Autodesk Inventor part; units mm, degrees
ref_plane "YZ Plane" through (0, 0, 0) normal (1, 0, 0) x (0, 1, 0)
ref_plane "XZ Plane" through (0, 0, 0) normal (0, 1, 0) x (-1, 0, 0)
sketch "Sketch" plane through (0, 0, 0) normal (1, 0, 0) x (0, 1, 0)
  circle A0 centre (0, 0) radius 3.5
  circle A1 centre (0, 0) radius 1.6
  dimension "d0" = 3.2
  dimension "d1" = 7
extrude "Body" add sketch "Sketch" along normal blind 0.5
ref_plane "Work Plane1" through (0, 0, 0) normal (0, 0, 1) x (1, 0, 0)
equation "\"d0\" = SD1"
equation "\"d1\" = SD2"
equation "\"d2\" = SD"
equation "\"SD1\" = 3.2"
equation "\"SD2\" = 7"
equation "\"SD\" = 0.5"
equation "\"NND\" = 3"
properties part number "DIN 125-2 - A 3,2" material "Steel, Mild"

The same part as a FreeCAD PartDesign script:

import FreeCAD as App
import Part
import Sketcher

V = App.Vector
Q = App.Units.Quantity

doc = App.newDocument("Part")
body = doc.addObject("PartDesign::Body", "Body")

# Sketch on YZ plane
sketch1 = doc.addObject("Sketcher::SketchObject", "Sketch")
body.addObject(sketch1)
sketch1.AttachmentSupport = (doc.YZ_Plane, [""])
sketch1.MapMode = "FlatFace"
sketch1.addGeometry(Part.Circle(V(0, 0, 0), V(0, 0, 1), 3.5), False)
sketch1.addGeometry(Part.Circle(V(0, 0, 0), V(0, 0, 1), 1.6), False)
sketch1.addConstraint(Sketcher.Constraint("Coincident", 0, 3, -1, 1))
sketch1.addConstraint(Sketcher.Constraint("Coincident", 1, 3, -1, 1))
sketch1.addConstraint(Sketcher.Constraint("Diameter", 0, Q("7 mm")))
sketch1.addConstraint(Sketcher.Constraint("Diameter", 1, Q("3.2 mm")))
pad1 = doc.addObject("PartDesign::Pad", "Pad")
body.addObject(pad1)
pad1.Profile = sketch1
pad1.Length = 0.5

doc.recompute()
